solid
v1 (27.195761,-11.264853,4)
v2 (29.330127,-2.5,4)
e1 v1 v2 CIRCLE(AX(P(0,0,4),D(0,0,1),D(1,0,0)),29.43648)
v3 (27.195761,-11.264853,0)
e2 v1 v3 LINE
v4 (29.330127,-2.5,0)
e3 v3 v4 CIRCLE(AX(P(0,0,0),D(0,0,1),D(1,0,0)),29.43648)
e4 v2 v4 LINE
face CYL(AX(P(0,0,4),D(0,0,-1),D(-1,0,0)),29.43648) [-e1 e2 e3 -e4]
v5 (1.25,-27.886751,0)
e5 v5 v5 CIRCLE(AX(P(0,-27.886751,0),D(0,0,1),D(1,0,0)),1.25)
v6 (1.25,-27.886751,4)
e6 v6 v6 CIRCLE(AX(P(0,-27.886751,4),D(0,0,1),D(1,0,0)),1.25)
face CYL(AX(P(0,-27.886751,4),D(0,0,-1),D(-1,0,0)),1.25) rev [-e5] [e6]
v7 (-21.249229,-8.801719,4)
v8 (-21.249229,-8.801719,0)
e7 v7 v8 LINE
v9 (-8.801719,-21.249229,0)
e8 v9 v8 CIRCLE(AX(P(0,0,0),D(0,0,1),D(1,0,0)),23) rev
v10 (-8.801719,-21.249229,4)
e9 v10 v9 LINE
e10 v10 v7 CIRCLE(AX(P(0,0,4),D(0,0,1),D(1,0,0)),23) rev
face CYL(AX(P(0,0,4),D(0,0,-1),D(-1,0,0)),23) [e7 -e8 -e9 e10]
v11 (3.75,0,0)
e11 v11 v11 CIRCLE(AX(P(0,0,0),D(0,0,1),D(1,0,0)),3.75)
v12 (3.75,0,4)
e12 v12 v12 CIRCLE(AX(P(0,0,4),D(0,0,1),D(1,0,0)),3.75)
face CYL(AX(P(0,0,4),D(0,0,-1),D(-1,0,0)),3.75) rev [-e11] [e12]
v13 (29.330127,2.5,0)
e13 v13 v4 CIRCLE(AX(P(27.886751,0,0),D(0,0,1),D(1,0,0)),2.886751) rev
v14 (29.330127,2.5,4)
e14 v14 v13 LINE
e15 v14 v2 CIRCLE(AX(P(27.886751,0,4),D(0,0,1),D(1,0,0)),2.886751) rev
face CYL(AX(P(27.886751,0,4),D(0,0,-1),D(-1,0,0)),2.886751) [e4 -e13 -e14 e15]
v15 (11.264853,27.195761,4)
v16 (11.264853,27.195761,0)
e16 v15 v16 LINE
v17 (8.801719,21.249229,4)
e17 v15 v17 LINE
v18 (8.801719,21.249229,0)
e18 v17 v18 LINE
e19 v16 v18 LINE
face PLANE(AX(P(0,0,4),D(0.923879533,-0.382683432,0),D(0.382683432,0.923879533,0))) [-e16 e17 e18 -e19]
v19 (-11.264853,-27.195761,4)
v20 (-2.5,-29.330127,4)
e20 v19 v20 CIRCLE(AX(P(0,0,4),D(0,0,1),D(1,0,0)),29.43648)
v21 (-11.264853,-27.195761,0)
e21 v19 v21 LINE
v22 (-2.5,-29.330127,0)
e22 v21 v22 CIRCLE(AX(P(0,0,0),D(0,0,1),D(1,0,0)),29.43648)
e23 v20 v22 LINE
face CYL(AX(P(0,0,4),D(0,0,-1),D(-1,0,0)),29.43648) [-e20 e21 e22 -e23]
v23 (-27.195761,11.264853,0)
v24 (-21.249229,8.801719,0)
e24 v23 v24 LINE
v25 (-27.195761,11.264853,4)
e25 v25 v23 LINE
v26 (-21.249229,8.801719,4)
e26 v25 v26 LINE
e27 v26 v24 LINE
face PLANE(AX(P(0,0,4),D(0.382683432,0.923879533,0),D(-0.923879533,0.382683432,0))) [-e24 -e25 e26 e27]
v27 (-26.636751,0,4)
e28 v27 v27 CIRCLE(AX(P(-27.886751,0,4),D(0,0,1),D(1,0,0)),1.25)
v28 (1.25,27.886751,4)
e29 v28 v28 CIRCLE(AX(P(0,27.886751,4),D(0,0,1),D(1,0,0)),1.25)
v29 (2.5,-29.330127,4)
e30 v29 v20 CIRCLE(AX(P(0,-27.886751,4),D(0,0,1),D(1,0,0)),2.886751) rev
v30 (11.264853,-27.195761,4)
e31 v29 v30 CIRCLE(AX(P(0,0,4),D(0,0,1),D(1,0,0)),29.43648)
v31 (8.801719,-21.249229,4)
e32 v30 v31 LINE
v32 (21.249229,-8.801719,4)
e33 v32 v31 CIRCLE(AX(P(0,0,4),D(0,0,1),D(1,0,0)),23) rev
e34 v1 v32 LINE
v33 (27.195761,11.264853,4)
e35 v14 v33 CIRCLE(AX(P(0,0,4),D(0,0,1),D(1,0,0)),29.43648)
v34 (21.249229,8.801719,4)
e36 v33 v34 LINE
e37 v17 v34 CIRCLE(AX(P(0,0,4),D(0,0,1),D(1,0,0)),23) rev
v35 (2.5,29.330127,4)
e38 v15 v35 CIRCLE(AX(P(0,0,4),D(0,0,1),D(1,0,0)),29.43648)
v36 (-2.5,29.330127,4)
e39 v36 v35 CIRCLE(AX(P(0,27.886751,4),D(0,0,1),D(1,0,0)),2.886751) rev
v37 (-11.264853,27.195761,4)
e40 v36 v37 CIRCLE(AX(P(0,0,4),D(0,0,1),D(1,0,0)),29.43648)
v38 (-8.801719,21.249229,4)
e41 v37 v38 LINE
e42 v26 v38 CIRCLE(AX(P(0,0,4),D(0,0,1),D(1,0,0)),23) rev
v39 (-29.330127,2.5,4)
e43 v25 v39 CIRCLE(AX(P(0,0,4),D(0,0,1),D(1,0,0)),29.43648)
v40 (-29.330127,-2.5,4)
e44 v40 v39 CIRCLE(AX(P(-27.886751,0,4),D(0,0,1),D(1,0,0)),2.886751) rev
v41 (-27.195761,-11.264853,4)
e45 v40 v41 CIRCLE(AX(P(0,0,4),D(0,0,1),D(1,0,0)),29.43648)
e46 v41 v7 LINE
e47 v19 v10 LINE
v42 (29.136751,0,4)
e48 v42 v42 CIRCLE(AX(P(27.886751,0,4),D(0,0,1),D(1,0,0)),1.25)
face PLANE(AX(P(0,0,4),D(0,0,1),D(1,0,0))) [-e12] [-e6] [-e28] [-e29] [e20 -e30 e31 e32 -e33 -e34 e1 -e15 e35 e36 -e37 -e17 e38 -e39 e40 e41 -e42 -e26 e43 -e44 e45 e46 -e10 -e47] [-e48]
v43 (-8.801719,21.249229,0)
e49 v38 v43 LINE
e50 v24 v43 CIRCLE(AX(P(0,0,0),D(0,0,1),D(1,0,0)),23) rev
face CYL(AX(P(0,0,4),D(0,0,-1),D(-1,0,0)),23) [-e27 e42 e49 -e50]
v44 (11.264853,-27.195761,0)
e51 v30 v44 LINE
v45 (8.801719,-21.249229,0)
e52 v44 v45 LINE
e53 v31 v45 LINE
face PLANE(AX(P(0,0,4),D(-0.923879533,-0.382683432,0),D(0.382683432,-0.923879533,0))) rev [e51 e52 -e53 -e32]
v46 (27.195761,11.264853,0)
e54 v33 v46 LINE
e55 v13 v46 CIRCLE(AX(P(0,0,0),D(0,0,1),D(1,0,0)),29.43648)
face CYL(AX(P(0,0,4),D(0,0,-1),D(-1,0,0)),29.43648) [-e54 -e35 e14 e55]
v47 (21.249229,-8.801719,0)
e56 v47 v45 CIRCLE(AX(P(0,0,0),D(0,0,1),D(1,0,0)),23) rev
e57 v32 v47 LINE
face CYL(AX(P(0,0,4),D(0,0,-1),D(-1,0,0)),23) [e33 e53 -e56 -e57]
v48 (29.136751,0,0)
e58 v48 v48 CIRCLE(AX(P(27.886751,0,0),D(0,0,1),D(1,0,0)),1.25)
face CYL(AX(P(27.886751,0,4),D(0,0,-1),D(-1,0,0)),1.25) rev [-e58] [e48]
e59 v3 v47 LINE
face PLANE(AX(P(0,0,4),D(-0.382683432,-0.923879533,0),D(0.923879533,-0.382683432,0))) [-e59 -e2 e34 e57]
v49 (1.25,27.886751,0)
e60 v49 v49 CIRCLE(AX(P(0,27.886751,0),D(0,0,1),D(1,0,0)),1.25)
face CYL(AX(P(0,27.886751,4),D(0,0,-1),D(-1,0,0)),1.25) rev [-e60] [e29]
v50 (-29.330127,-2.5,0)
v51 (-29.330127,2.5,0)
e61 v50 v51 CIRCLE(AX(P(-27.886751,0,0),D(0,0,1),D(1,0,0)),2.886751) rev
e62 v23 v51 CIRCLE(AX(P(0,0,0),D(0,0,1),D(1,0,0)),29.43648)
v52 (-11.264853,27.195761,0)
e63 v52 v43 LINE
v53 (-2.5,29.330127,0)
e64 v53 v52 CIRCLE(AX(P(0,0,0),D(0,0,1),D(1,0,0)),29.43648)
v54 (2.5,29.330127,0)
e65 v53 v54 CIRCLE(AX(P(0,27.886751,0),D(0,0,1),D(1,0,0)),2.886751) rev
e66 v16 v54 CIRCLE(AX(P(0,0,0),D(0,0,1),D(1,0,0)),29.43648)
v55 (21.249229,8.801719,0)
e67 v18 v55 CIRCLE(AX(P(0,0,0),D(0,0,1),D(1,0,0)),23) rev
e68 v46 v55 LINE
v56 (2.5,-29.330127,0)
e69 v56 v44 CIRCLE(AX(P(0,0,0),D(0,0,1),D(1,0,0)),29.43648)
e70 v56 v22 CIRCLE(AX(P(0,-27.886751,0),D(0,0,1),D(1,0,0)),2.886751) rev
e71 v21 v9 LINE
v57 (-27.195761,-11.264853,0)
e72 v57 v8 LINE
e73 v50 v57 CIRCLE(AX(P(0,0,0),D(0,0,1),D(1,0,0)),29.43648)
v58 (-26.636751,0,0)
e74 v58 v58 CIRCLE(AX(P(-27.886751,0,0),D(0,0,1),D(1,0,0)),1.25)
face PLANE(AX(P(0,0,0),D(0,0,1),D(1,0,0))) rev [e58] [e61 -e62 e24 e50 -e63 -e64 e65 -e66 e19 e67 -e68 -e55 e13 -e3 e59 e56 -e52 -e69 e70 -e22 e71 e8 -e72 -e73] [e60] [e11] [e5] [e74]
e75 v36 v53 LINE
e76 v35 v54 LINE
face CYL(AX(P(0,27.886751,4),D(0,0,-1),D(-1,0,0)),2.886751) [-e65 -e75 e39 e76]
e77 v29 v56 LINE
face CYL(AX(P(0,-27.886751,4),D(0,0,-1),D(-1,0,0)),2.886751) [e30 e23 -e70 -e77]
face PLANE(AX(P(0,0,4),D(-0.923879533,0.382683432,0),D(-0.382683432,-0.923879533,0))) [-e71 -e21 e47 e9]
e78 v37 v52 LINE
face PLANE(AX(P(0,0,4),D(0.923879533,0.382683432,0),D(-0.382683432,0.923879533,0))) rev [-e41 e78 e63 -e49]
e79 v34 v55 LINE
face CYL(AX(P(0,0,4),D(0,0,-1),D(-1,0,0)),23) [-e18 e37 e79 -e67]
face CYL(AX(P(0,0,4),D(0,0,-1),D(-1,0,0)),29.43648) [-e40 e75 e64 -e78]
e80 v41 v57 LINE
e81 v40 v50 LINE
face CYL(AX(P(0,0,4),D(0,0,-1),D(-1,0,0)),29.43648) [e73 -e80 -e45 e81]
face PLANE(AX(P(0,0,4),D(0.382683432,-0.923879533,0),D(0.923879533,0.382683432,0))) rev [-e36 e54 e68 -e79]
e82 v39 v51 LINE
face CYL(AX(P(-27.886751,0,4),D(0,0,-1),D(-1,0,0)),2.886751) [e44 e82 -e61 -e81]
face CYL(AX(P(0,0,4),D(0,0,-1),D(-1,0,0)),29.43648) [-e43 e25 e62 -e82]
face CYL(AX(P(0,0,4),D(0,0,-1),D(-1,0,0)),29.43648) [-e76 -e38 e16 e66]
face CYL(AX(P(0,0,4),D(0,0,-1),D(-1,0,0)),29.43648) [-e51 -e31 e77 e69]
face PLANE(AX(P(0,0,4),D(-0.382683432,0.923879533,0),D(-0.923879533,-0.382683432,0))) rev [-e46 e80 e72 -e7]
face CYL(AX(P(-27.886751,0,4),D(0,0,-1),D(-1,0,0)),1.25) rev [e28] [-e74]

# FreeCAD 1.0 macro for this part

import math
import FreeCAD as App
import Part
import Sketcher
Q = App.Units.Quantity

doc = App.newDocument("Part")
params = doc.addObject("Spreadsheet::Sheet", "Params")
for row, (alias, value) in enumerate([
    ("sketch1_radius", "23 mm"),
    ("sketch1_diameter", "2.5 mm"),
    ("sketch1_diameter2", "7.5 mm"),
    ("pad1_length", "4 mm"),
], start=1):
    params.set(f"A{row}", alias)
    params.set(f"B{row}", "=" + value)
    params.setAlias(f"B{row}", alias)

body = doc.addObject("PartDesign::Body", "Body")

# Sketch on XY plane
sketch1 = doc.addObject("Sketcher::SketchObject", "Sketch")
body.addObject(sketch1)
sketch1.AttachmentSupport = (doc.XY_Plane, [""])
sketch1.MapMode = "FlatFace"
sketch1.addGeometry([
    Part.LineSegment(App.Vector(-21.2, 8.8, 0), App.Vector(-27.2, 11.3, 0)),  # 0
    Part.ArcOfCircle(Part.Circle(App.Vector(0, 0, 0), App.Vector(0, 0, 1), 29.4), math.radians(157.5), math.radians(175.13)),  # 1
    Part.ArcOfCircle(Part.Circle(App.Vector(-27.9, 0, 0), App.Vector(0, 0, 1), 2.9), math.radians(120), math.radians(240)),  # 2
    Part.ArcOfCircle(Part.Circle(App.Vector(0, 0, 0), App.Vector(0, 0, 1), 29.4), math.radians(-175.13), math.radians(-157.5)),  # 3
    Part.LineSegment(App.Vector(-27.2, -11.3, 0), App.Vector(-21.2, -8.8, 0)),  # 4
    Part.ArcOfCircle(Part.Circle(App.Vector(0, 0, 0), App.Vector(0, 0, 1), 23), math.radians(-157), math.radians(-113)),  # 5
    Part.LineSegment(App.Vector(-8.8, -21.2, 0), App.Vector(-11.3, -27.2, 0)),  # 6
    Part.ArcOfCircle(Part.Circle(App.Vector(0, 0, 0), App.Vector(0, 0, 1), 29.4), math.radians(-112.5), math.radians(-94.87)),  # 7
    Part.ArcOfCircle(Part.Circle(App.Vector(0, -27.9, 0), App.Vector(0, 0, 1), 2.9), math.radians(-150), math.radians(-30)),  # 8
    Part.ArcOfCircle(Part.Circle(App.Vector(0, 0, 0), App.Vector(0, 0, 1), 29.4), math.radians(-85.13), math.radians(-67.5)),  # 9
    Part.LineSegment(App.Vector(11.3, -27.2, 0), App.Vector(8.8, -21.2, 0)),  # 10
    Part.ArcOfCircle(Part.Circle(App.Vector(0, 0, 0), App.Vector(0, 0, 1), 23), math.radians(-67), math.radians(-23)),  # 11
    Part.LineSegment(App.Vector(21.2, -8.8, 0), App.Vector(27.2, -11.3, 0)),  # 12
    Part.ArcOfCircle(Part.Circle(App.Vector(0, 0, 0), App.Vector(0, 0, 1), 29.4), math.radians(-22.5), math.radians(-4.87)),  # 13
    Part.ArcOfCircle(Part.Circle(App.Vector(27.9, 0, 0), App.Vector(0, 0, 1), 2.9), math.radians(-60), math.radians(60)),  # 14
    Part.ArcOfCircle(Part.Circle(App.Vector(0, 0, 0), App.Vector(0, 0, 1), 29.4), math.radians(4.87), math.radians(22.5)),  # 15
    Part.LineSegment(App.Vector(27.2, 11.3, 0), App.Vector(21.2, 8.8, 0)),  # 16
    Part.ArcOfCircle(Part.Circle(App.Vector(0, 0, 0), App.Vector(0, 0, 1), 23), math.radians(23), math.radians(67)),  # 17
    Part.LineSegment(App.Vector(8.8, 21.2, 0), App.Vector(11.3, 27.2, 0)),  # 18
    Part.ArcOfCircle(Part.Circle(App.Vector(0, 0, 0), App.Vector(0, 0, 1), 29.4), math.radians(67.5), math.radians(85.13)),  # 19
    Part.ArcOfCircle(Part.Circle(App.Vector(0, 27.9, 0), App.Vector(0, 0, 1), 2.9), math.radians(30), math.radians(150)),  # 20
    Part.ArcOfCircle(Part.Circle(App.Vector(0, 0, 0), App.Vector(0, 0, 1), 29.4), math.radians(94.87), math.radians(112.5)),  # 21
    Part.LineSegment(App.Vector(-11.3, 27.2, 0), App.Vector(-8.8, 21.2, 0)),  # 22
    Part.ArcOfCircle(Part.Circle(App.Vector(0, 0, 0), App.Vector(0, 0, 1), 23), math.radians(113), math.radians(157)),  # 23
    Part.Circle(App.Vector(0, -27.9, 0), App.Vector(0, 0, 1), 1.2),  # 24
    Part.Circle(App.Vector(-27.9, 0, 0), App.Vector(0, 0, 1), 1.2),  # 25
    Part.Circle(App.Vector(0, 0, 0), App.Vector(0, 0, 1), 3.8),  # 26
    Part.Circle(App.Vector(27.9, 0, 0), App.Vector(0, 0, 1), 1.2),  # 27
    Part.Circle(App.Vector(0, 27.9, 0), App.Vector(0, 0, 1), 1.2),  # 28
], False)
sketch1.addConstraint([
    Sketcher.Constraint("Coincident", 0, 2, 1, 1),
    Sketcher.Constraint("Coincident", 1, 2, 2, 1),
    Sketcher.Constraint("Coincident", 2, 2, 3, 1),
    Sketcher.Constraint("Coincident", 3, 2, 4, 1),
    Sketcher.Constraint("Coincident", 4, 2, 5, 1),
    Sketcher.Constraint("Coincident", 5, 2, 6, 1),
    Sketcher.Constraint("Coincident", 6, 2, 7, 1),
    Sketcher.Constraint("Coincident", 7, 2, 8, 1),
    Sketcher.Constraint("Coincident", 8, 2, 9, 1),
    Sketcher.Constraint("Coincident", 9, 2, 10, 1),
    Sketcher.Constraint("Coincident", 10, 2, 11, 1),
    Sketcher.Constraint("Coincident", 11, 2, 12, 1),
    Sketcher.Constraint("Coincident", 12, 2, 13, 1),
    Sketcher.Constraint("Coincident", 13, 2, 14, 1),
    Sketcher.Constraint("Coincident", 14, 2, 15, 1),
    Sketcher.Constraint("Coincident", 15, 2, 16, 1),
    Sketcher.Constraint("Coincident", 16, 2, 17, 1),
    Sketcher.Constraint("Coincident", 17, 2, 18, 1),
    Sketcher.Constraint("Coincident", 18, 2, 19, 1),
    Sketcher.Constraint("Coincident", 19, 2, 20, 1),
    Sketcher.Constraint("Coincident", 20, 2, 21, 1),
    Sketcher.Constraint("Coincident", 21, 2, 22, 1),
    Sketcher.Constraint("Coincident", 22, 2, 23, 1),
    Sketcher.Constraint("Coincident", 23, 2, 0, 1),
    Sketcher.Constraint("Coincident", 1, 3, -1, 1),
    Sketcher.Constraint("Coincident", 3, 3, -1, 1),
    Sketcher.Constraint("Coincident", 5, 3, -1, 1),
    Sketcher.Constraint("Coincident", 7, 3, -1, 1),
    Sketcher.Constraint("Coincident", 9, 3, -1, 1),
    Sketcher.Constraint("Coincident", 11, 3, -1, 1),
    Sketcher.Constraint("Coincident", 13, 3, -1, 1),
    Sketcher.Constraint("Coincident", 15, 3, -1, 1),
    Sketcher.Constraint("Coincident", 17, 3, -1, 1),
    Sketcher.Constraint("Coincident", 19, 3, -1, 1),
    Sketcher.Constraint("Coincident", 21, 3, -1, 1),
    Sketcher.Constraint("Coincident", 23, 3, -1, 1),
    Sketcher.Constraint("Coincident", 26, 3, -1, 1),
    Sketcher.Constraint("Coincident", 24, 3, 8, 3),
    Sketcher.Constraint("Coincident", 25, 3, 2, 3),
    Sketcher.Constraint("Coincident", 27, 3, 14, 3),
    Sketcher.Constraint("Coincident", 28, 3, 20, 3),
    Sketcher.Constraint("Equal", 1, 3),
    Sketcher.Constraint("Equal", 3, 7),
    Sketcher.Constraint("Equal", 2, 8),
    Sketcher.Constraint("Equal", 7, 9),
    Sketcher.Constraint("Equal", 5, 11),
    Sketcher.Constraint("Equal", 9, 13),
    Sketcher.Constraint("Equal", 8, 14),
    Sketcher.Constraint("Equal", 13, 15),
    Sketcher.Constraint("Equal", 11, 17),
    Sketcher.Constraint("Equal", 15, 19),
    Sketcher.Constraint("Equal", 14, 20),
    Sketcher.Constraint("Equal", 19, 21),
    Sketcher.Constraint("Equal", 17, 23),
    Sketcher.Constraint("Equal", 24, 25),
    Sketcher.Constraint("Equal", 25, 27),
    Sketcher.Constraint("Equal", 27, 28),
    Sketcher.Constraint("Symmetric", 2, 3, 14, 3, -1, 1),
    Sketcher.Constraint("Symmetric", 8, 3, 20, 3, -1, 1),
    Sketcher.Constraint("PointOnObject", 2, 3, -1),
    Sketcher.Constraint("PointOnObject", 8, 3, -2),
    Sketcher.Constraint("Perpendicular", 0, 6),
    Sketcher.Constraint("Perpendicular", 4, 10),
    Sketcher.Constraint("Perpendicular", 6, 12),
    Sketcher.Constraint("Perpendicular", 10, 16),
    Sketcher.Constraint("Perpendicular", 12, 18),
    Sketcher.Constraint("Perpendicular", 16, 22),
    Sketcher.Constraint("Horizontal", 6, 2, 9, 2),
    Sketcher.Constraint("Horizontal", 5, 2, 10, 2),
    Sketcher.Constraint("Horizontal", 4, 2, 11, 2),
    Sketcher.Constraint("Horizontal", 0, 2, 15, 2),
    Sketcher.Constraint("Horizontal", 18, 2, 21, 2),
    Sketcher.Constraint("Vertical", 0, 2, 3, 2),
    Sketcher.Constraint("Vertical", 10, 2, 17, 2),
    Sketcher.Constraint("Radius", 5, Q("23 mm")),
    Sketcher.Constraint("Diameter", 24, Q("2.5 mm")),
    Sketcher.Constraint("Diameter", 26, Q("7.5 mm")),
    Sketcher.Constraint("Angle", 0, Q("157.5 deg")),
    Sketcher.Constraint("DistanceY", 2, 2, 1, 2, Q("5 mm")),
    Sketcher.Constraint("DistanceX", 7, 2, 8, 2, Q("5 mm")),
    Sketcher.Constraint("Radius", 1, Q("29.43648 mm")),
    Sketcher.Constraint("Radius", 2, Q("2.886751 mm")),
    Sketcher.Constraint("DistanceX", 0, 2, -1, 1, Q("27.195761 mm")),
    Sketcher.Constraint("DistanceX", 5, 2, -1, 1, Q("8.801719 mm")),
])
sketch1.setExpression("Constraints[74]", "Params.sketch1_radius")
sketch1.setExpression("Constraints[75]", "Params.sketch1_diameter")
sketch1.setExpression("Constraints[76]", "Params.sketch1_diameter2")
pad1 = doc.addObject("PartDesign::Pad", "Pad")
body.addObject(pad1)
pad1.Profile = sketch1
pad1.setExpression("Length", "Params.pad1_length")

doc.recompute()
